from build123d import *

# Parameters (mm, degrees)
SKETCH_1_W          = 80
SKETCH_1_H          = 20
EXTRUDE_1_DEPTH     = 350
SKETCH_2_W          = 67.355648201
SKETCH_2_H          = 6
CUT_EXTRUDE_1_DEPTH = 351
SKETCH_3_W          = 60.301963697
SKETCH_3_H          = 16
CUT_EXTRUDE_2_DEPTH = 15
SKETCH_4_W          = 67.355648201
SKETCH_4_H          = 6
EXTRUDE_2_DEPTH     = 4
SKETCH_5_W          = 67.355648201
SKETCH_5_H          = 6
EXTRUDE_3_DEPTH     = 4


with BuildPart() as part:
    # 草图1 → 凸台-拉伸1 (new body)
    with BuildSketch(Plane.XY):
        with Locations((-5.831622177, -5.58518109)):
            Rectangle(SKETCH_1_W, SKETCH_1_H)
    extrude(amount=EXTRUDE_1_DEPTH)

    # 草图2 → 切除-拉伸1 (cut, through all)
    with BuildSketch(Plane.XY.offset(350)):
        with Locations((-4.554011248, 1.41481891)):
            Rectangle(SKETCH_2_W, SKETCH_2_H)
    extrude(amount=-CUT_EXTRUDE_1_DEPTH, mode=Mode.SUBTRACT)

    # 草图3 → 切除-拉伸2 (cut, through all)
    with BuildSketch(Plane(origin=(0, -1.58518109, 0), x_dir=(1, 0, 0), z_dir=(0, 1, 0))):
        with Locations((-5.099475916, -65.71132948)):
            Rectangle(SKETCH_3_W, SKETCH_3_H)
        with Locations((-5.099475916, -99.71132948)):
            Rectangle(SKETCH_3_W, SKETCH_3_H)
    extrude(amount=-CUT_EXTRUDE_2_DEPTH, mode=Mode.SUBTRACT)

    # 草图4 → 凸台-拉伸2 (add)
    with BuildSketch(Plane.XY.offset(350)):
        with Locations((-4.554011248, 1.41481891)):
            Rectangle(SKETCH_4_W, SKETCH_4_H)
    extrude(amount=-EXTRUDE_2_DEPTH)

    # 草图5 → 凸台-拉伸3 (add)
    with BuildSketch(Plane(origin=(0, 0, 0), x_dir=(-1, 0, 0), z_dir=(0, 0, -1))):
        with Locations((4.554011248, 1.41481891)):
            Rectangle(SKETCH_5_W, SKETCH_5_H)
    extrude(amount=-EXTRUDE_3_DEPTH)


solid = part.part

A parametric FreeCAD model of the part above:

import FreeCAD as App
import Part
import Sketcher
from FreeCAD import Vector

doc = App.newDocument("Part")
body = doc.addObject("PartDesign::Body", "Body")

# Sketch on XY plane
sketch1 = body.newObject("Sketcher::SketchObject", "Sketch")
sketch1.AttachmentSupport = (doc.getObject("XY_Plane"), [""])
sketch1.MapMode = "FlatFace"
sketch1.addGeometry(Part.LineSegment(Vector(-46, 4, 0), Vector(-46, -16, 0)), False)
sketch1.addGeometry(Part.LineSegment(Vector(-46, -16, 0), Vector(34, -16, 0)), False)
sketch1.addGeometry(Part.LineSegment(Vector(34, -16, 0), Vector(34, 4, 0)), False)
sketch1.addGeometry(Part.LineSegment(Vector(34, 4, 0), Vector(-46, 4, 0)), False)
sketch1.addConstraint(Sketcher.Constraint("Coincident", 0, 2, 1, 1))
sketch1.addConstraint(Sketcher.Constraint("Coincident", 1, 2, 2, 1))
sketch1.addConstraint(Sketcher.Constraint("Coincident", 2, 2, 3, 1))
sketch1.addConstraint(Sketcher.Constraint("Coincident", 3, 2, 0, 1))
sketch1.addConstraint(Sketcher.Constraint("Vertical", 0))
sketch1.addConstraint(Sketcher.Constraint("Horizontal", 1))
sketch1.addConstraint(Sketcher.Constraint("Vertical", 2))
sketch1.addConstraint(Sketcher.Constraint("Horizontal", 3))
sketch1.addConstraint(Sketcher.Constraint("DistanceX", 1, 1, 1, 2, 80.0))
sketch1.addConstraint(Sketcher.Constraint("DistanceY", 0, 2, 0, 1, 20.0))
sketch1.addConstraint(Sketcher.Constraint("DistanceY", 0, 2, -1, 1, 15.585181))
sketch1.addConstraint(Sketcher.Constraint("DistanceX", 0, 2, -1, 1, 45.831622))
pad1 = body.newObject("PartDesign::Pad", "Pad")
pad1.Profile = sketch1
pad1.Length = 350

# Sketch on XY plane
sketch2 = body.newObject("Sketcher::SketchObject", "Sketch001")
sketch2.AttachmentSupport = (doc.getObject("XY_Plane"), [""])
sketch2.MapMode = "FlatFace"
sketch2.AttachmentOffset = App.Placement(Vector(0, 0, 350), App.Rotation())
sketch2.addGeometry(Part.LineSegment(Vector(-38, 4, 0), Vector(-38, -2, 0)), False)
sketch2.addGeometry(Part.LineSegment(Vector(-38, -2, 0), Vector(29, -2, 0)), False)
sketch2.addGeometry(Part.LineSegment(Vector(29, -2, 0), Vector(29, 4, 0)), False)
sketch2.addGeometry(Part.LineSegment(Vector(29, 4, 0), Vector(-38, 4, 0)), False)
sketch2.addConstraint(Sketcher.Constraint("Coincident", 0, 2, 1, 1))
sketch2.addConstraint(Sketcher.Constraint("Coincident", 1, 2, 2, 1))
sketch2.addConstraint(Sketcher.Constraint("Coincident", 2, 2, 3, 1))
sketch2.addConstraint(Sketcher.Constraint("Coincident", 3, 2, 0, 1))
sketch2.addConstraint(Sketcher.Constraint("Vertical", 0))
sketch2.addConstraint(Sketcher.Constraint("Horizontal", 1))
sketch2.addConstraint(Sketcher.Constraint("Vertical", 2))
sketch2.addConstraint(Sketcher.Constraint("Horizontal", 3))
sketch2.addConstraint(Sketcher.Constraint("DistanceY", 0, 2, 0, 1, 6.0))
sketch2.addConstraint(Sketcher.Constraint("DistanceX", 1, 1, 1, 2, 67.355648))
sketch2.addConstraint(Sketcher.Constraint("DistanceY", 0, 2, -1, 1, 1.585181))
sketch2.addConstraint(Sketcher.Constraint("DistanceX", 0, 2, -1, 1, 38.231835))
pocket1 = body.newObject("PartDesign::Pocket", "Pocket")
pocket1.Profile = sketch2
pocket1.Type = "ThroughAll"

# Sketch on XZ plane
sketch3 = body.newObject("Sketcher::SketchObject", "Sketch002")
sketch3.AttachmentSupport = (doc.getObject("XZ_Plane"), [""])
sketch3.MapMode = "FlatFace"
sketch3.AttachmentOffset = App.Placement(Vector(0, 0, 1.585181), App.Rotation())
sketch3.addGeometry(Part.LineSegment(Vector(-35, 58, 0), Vector(-35, 74, 0)), False)
sketch3.addGeometry(Part.LineSegment(Vector(-35, 74, 0), Vector(25, 74, 0)), False)
sketch3.addGeometry(Part.LineSegment(Vector(25, 74, 0), Vector(25, 58, 0)), False)
sketch3.addGeometry(Part.LineSegment(Vector(25, 58, 0), Vector(-35, 58, 0)), False)
sketch3.addGeometry(Part.LineSegment(Vector(-35, 92, 0), Vector(-35, 108, 0)), False)
sketch3.addGeometry(Part.LineSegment(Vector(-35, 108, 0), Vector(25, 108, 0)), False)
sketch3.addGeometry(Part.LineSegment(Vector(25, 108, 0), Vector(25, 92, 0)), False)
sketch3.addGeometry(Part.LineSegment(Vector(25, 92, 0), Vector(-35, 92, 0)), False)
sketch3.addConstraint(Sketcher.Constraint("Coincident", 0, 2, 1, 1))
sketch3.addConstraint(Sketcher.Constraint("Coincident", 1, 2, 2, 1))
sketch3.addConstraint(Sketcher.Constraint("Coincident", 2, 2, 3, 1))
sketch3.addConstraint(Sketcher.Constraint("Coincident", 3, 2, 0, 1))
sketch3.addConstraint(Sketcher.Constraint("Coincident", 4, 2, 5, 1))
sketch3.addConstraint(Sketcher.Constraint("Coincident", 5, 2, 6, 1))
sketch3.addConstraint(Sketcher.Constraint("Coincident", 6, 2, 7, 1))
sketch3.addConstraint(Sketcher.Constraint("Coincident", 7, 2, 4, 1))
sketch3.addConstraint(Sketcher.Constraint("Vertical", 0))
sketch3.addConstraint(Sketcher.Constraint("Horizontal", 1))
sketch3.addConstraint(Sketcher.Constraint("Vertical", 2))
sketch3.addConstraint(Sketcher.Constraint("Horizontal", 3))
sketch3.addConstraint(Sketcher.Constraint("Vertical", 4))
sketch3.addConstraint(Sketcher.Constraint("Horizontal", 5))
sketch3.addConstraint(Sketcher.Constraint("Vertical", 6))
sketch3.addConstraint(Sketcher.Constraint("Horizontal", 7))
sketch3.addConstraint(Sketcher.Constraint("Vertical", 3, 2, 4, 2))
sketch3.addConstraint(Sketcher.Constraint("Vertical", 2, 2, 5, 2))
sketch3.addConstraint(Sketcher.Constraint("Equal", 2, 4))
sketch3.addConstraint(Sketcher.Constraint("DistanceY", 0, 1, 0, 2, 16.0))
sketch3.addConstraint(Sketcher.Constraint("DistanceY", 0, 2, 4, 2, 34.0))
sketch3.addConstraint(Sketcher.Constraint("DistanceX", 1, 1, 1, 2, 60.301964))
sketch3.addConstraint(Sketcher.Constraint("DistanceY", -1, 1, 0, 2, 73.711329))
sketch3.addConstraint(Sketcher.Constraint("DistanceX", 0, 2, -1, 1, 35.250458))
pocket2 = body.newObject("PartDesign::Pocket", "Pocket001")
pocket2.Profile = sketch3
pocket2.Type = "ThroughAll"
pocket2.Reversed = True

# Sketch on XY plane
sketch4 = body.newObject("Sketcher::SketchObject", "Sketch003")
sketch4.AttachmentSupport = (doc.getObject("XY_Plane"), [""])
sketch4.MapMode = "FlatFace"
sketch4.AttachmentOffset = App.Placement(Vector(0, 0, 350), App.Rotation())
sketch4.addGeometry(Part.LineSegment(Vector(-38, 4, 0), Vector(-38, -2, 0)), False)
sketch4.addGeometry(Part.LineSegment(Vector(-38, -2, 0), Vector(29, -2, 0)), False)
sketch4.addGeometry(Part.LineSegment(Vector(29, -2, 0), Vector(29, 4, 0)), False)
sketch4.addGeometry(Part.LineSegment(Vector(29, 4, 0), Vector(-38, 4, 0)), False)
sketch4.addConstraint(Sketcher.Constraint("Coincident", 0, 2, 1, 1))
sketch4.addConstraint(Sketcher.Constraint("Coincident", 1, 2, 2, 1))
sketch4.addConstraint(Sketcher.Constraint("Coincident", 2, 2, 3, 1))
sketch4.addConstraint(Sketcher.Constraint("Coincident", 3, 2, 0, 1))
sketch4.addConstraint(Sketcher.Constraint("Vertical", 0))
sketch4.addConstraint(Sketcher.Constraint("Horizontal", 1))
sketch4.addConstraint(Sketcher.Constraint("Vertical", 2))
sketch4.addConstraint(Sketcher.Constraint("Horizontal", 3))
sketch4.addConstraint(Sketcher.Constraint("DistanceY", 0, 2, 0, 1, 6.0))
sketch4.addConstraint(Sketcher.Constraint("DistanceX", 1, 1, 1, 2, 67.355648))
sketch4.addConstraint(Sketcher.Constraint("DistanceY", 0, 2, -1, 1, 1.585181))
sketch4.addConstraint(Sketcher.Constraint("DistanceX", 0, 2, -1, 1, 38.231835))
pad2 = body.newObject("PartDesign::Pad", "Pad001")
pad2.Profile = sketch4
pad2.Length = 4
pad2.Reversed = True

# Sketch on XY plane
sketch5 = body.newObject("Sketcher::SketchObject", "Sketch004")
sketch5.AttachmentSupport = (doc.getObject("XY_Plane"), [""])
sketch5.MapMode = "FlatFace"
sketch5.addGeometry(Part.LineSegment(Vector(29, 4, 0), Vector(29, -2, 0)), False)
sketch5.addGeometry(Part.LineSegment(Vector(29, -2, 0), Vector(-38, -2, 0)), False)
sketch5.addGeometry(Part.LineSegment(Vector(-38, -2, 0), Vector(-38, 4, 0)), False)
sketch5.addGeometry(Part.LineSegment(Vector(-38, 4, 0), Vector(29, 4, 0)), False)
sketch5.addConstraint(Sketcher.Constraint("Coincident", 0, 2, 1, 1))
sketch5.addConstraint(Sketcher.Constraint("Coincident", 1, 2, 2, 1))
sketch5.addConstraint(Sketcher.Constraint("Coincident", 2, 2, 3, 1))
sketch5.addConstraint(Sketcher.Constraint("Coincident", 3, 2, 0, 1))
sketch5.addConstraint(Sketcher.Constraint("Vertical", 0))
sketch5.addConstraint(Sketcher.Constraint("Horizontal", 1))
sketch5.addConstraint(Sketcher.Constraint("Vertical", 2))
sketch5.addConstraint(Sketcher.Constraint("Horizontal", 3))
sketch5.addConstraint(Sketcher.Constraint("DistanceY", 0, 2, 0, 1, 6.0))
sketch5.addConstraint(Sketcher.Constraint("DistanceX", 1, 2, 1, 1, 67.355648))
sketch5.addConstraint(Sketcher.Constraint("DistanceY", 0, 2, -1, 1, 1.585181))
sketch5.addConstraint(Sketcher.Constraint("DistanceX", -1, 1, 0, 2, 29.123813))
pad3 = body.newObject("PartDesign::Pad", "Pad002")
pad3.Profile = sketch5
pad3.Length = 4

doc.recompute()
